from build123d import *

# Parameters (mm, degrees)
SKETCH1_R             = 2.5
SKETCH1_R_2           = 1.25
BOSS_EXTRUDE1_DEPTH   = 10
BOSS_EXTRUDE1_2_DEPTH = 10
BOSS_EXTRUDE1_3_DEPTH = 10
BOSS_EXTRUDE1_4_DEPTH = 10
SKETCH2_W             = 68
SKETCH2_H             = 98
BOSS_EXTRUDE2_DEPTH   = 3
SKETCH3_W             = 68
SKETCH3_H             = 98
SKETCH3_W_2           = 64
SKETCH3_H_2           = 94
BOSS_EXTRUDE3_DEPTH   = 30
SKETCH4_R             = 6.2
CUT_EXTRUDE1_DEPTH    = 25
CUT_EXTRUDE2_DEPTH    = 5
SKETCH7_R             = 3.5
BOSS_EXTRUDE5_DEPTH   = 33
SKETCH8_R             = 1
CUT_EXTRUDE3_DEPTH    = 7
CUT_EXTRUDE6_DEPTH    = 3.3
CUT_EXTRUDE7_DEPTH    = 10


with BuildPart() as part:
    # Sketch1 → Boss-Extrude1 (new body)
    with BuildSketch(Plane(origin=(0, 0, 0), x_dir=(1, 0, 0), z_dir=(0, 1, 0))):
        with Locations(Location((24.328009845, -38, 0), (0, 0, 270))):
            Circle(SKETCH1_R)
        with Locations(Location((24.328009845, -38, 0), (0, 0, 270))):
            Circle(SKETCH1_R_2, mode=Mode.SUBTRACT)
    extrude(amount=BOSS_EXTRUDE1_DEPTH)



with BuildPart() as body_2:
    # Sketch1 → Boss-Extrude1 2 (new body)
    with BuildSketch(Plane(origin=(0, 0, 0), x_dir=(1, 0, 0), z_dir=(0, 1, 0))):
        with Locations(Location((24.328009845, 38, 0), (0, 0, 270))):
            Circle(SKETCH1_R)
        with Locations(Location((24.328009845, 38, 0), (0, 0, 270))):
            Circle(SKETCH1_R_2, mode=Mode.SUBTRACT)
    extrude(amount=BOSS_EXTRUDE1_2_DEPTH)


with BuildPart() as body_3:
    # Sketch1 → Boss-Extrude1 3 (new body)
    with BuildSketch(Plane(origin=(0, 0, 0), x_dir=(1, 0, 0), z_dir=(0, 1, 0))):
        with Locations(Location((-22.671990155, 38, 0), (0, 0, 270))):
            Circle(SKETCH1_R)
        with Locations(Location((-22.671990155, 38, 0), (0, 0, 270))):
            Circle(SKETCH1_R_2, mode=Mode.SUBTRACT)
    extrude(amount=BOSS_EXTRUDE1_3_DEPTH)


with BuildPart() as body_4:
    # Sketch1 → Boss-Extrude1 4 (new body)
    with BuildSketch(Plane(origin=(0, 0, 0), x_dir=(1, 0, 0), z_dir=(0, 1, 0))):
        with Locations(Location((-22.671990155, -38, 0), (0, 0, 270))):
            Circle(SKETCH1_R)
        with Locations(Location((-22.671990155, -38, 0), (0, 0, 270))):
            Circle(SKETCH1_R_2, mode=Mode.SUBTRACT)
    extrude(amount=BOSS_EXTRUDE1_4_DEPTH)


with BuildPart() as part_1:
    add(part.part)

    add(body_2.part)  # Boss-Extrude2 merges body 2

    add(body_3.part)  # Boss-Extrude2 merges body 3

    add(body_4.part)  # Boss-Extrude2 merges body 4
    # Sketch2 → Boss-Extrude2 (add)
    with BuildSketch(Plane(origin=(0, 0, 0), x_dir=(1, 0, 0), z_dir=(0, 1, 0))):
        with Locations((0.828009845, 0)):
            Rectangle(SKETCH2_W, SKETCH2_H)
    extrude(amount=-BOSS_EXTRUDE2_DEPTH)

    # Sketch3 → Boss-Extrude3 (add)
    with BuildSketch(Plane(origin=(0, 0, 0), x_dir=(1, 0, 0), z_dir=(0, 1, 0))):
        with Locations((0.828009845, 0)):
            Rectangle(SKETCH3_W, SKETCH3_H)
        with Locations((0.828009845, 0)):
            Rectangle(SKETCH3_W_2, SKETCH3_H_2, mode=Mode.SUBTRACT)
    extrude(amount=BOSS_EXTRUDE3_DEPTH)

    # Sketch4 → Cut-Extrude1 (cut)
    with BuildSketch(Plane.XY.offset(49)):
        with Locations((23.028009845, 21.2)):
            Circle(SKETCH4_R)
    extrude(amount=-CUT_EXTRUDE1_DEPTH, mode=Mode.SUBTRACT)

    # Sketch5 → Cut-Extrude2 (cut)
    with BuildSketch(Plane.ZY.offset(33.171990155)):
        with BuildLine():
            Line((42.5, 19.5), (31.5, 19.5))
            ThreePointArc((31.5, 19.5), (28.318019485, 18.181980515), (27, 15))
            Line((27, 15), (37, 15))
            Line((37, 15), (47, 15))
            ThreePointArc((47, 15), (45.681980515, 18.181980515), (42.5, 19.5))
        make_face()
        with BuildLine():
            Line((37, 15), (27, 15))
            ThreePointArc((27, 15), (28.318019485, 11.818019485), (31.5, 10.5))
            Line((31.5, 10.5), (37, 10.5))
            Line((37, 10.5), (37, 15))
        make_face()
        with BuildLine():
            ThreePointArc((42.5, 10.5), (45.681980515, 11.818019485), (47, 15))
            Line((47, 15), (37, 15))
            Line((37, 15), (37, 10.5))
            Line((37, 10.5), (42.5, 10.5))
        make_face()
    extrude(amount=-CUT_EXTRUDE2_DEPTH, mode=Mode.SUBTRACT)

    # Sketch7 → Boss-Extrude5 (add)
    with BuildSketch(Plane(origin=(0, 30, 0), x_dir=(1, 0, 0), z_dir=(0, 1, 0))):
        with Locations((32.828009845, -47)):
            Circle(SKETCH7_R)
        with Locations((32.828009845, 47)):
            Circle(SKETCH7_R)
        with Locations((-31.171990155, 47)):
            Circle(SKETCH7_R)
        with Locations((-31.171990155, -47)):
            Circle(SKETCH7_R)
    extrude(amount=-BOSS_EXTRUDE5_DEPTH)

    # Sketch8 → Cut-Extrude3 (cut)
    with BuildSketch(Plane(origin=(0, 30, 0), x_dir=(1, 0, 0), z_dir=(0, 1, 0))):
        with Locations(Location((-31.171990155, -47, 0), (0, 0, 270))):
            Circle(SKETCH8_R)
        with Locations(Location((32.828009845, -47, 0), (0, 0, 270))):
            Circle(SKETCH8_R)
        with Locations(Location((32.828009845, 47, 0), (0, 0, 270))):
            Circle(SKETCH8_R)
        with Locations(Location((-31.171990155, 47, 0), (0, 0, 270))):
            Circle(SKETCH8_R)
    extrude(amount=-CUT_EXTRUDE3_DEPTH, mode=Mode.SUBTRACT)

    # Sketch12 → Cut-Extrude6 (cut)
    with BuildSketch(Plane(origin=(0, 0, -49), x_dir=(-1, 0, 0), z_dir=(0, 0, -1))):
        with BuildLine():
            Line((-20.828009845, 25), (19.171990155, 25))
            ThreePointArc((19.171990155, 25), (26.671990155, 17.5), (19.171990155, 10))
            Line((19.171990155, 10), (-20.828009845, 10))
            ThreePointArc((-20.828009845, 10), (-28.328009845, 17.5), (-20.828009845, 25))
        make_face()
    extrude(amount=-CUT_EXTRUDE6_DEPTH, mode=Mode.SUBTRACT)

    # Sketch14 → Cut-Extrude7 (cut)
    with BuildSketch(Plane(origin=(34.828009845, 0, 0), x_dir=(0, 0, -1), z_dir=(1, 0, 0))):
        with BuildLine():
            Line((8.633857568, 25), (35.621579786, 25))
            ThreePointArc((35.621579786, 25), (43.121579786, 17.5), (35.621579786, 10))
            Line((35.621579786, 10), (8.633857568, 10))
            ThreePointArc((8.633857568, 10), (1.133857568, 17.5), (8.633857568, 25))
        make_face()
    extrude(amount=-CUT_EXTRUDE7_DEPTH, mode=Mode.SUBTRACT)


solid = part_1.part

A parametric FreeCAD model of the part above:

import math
import FreeCAD as App
import Part
import Sketcher
from FreeCAD import Vector
Q = App.Units.Quantity


def add_polygon(sketch, points):
    """Adds a closed chain of lines whose ends are joined by coincident constraints."""
    first, n = sketch.GeometryCount, len(points)
    for a, b in zip(points, points[1:] + points[:1]):
        sketch.addGeometry(Part.LineSegment(App.Vector(*a, 0), App.Vector(*b, 0)), False)
    for i in range(n):
        sketch.addConstraint(Sketcher.Constraint("Coincident", first + i, 2, first + (i + 1) % n, 1))

doc = App.newDocument("Part")
body = doc.addObject("PartDesign::Body", "Body")

sketch1 = doc.addObject("Sketcher::SketchObject", "Sketch")
body.addObject(sketch1)
sketch1.AttachmentSupport = (doc.XZ_Plane, [""])
sketch1.MapMode = "FlatFace"
sketch1.addGeometry([
    Part.Circle(Vector(24.3, 38, 0), Vector(0, 0, 1), 2.5),
    Part.Circle(Vector(24.3, 38, 0), Vector(0, 0, 1), 1.2),
], False)
sketch1.addConstraint([
    Sketcher.Constraint("Coincident", 1, 3, 0, 3),
    Sketcher.Constraint("Diameter", 0, Q("5 mm")),
    Sketcher.Constraint("Diameter", 1, Q("2.5 mm")),
    Sketcher.Constraint("DistanceY", -1, 1, 0, 3, Q("38 mm")),
    Sketcher.Constraint("DistanceX", -1, 1, 0, 3, Q("24.32801 mm")),
])
pad1 = doc.addObject("PartDesign::Pad", "Pad")
body.addObject(pad1)
pad1.Profile = sketch1
pad1.Length = 10
pad1.Reversed = True
body2 = doc.addObject("PartDesign::Body", "Body001")

sketch2 = doc.addObject("Sketcher::SketchObject", "Sketch001")
body2.addObject(sketch2)
sketch2.AttachmentSupport = (doc.getObject("XZ_Plane001"), [""])
sketch2.MapMode = "FlatFace"
sketch2.addGeometry([
    Part.Circle(Vector(24.3, -38, 0), Vector(0, 0, 1), 2.5),
    Part.Circle(Vector(24.3, -38, 0), Vector(0, 0, 1), 1.2),
], False)
sketch2.addConstraint([
    Sketcher.Constraint("Coincident", 1, 3, 0, 3),
    Sketcher.Constraint("Diameter", 0, Q("5 mm")),
    Sketcher.Constraint("Diameter", 1, Q("2.5 mm")),
    Sketcher.Constraint("DistanceY", 0, 3, -1, 1, Q("38 mm")),
    Sketcher.Constraint("DistanceX", -1, 1, 0, 3, Q("24.32801 mm")),
])
pad2 = doc.addObject("PartDesign::Pad", "Pad001")
body2.addObject(pad2)
pad2.Profile = sketch2
pad2.Length = 10
pad2.Reversed = True
body3 = doc.addObject("PartDesign::Body", "Body002")

sketch3 = doc.addObject("Sketcher::SketchObject", "Sketch002")
body3.addObject(sketch3)
sketch3.AttachmentSupport = (doc.getObject("XZ_Plane002"), [""])
sketch3.MapMode = "FlatFace"
sketch3.addGeometry([
    Part.Circle(Vector(-22.7, -38, 0), Vector(0, 0, 1), 2.5),
    Part.Circle(Vector(-22.7, -38, 0), Vector(0, 0, 1), 1.2),
], False)
sketch3.addConstraint([
    Sketcher.Constraint("Coincident", 1, 3, 0, 3),
    Sketcher.Constraint("Diameter", 0, Q("5 mm")),
    Sketcher.Constraint("Diameter", 1, Q("2.5 mm")),
    Sketcher.Constraint("DistanceY", 0, 3, -1, 1, Q("38 mm")),
    Sketcher.Constraint("DistanceX", 0, 3, -1, 1, Q("22.67199 mm")),
])
pad3 = doc.addObject("PartDesign::Pad", "Pad002")
body3.addObject(pad3)
pad3.Profile = sketch3
pad3.Length = 10
pad3.Reversed = True
body4 = doc.addObject("PartDesign::Body", "Body003")

sketch4 = doc.addObject("Sketcher::SketchObject", "Sketch003")
body4.addObject(sketch4)
sketch4.AttachmentSupport = (doc.getObject("XZ_Plane003"), [""])
sketch4.MapMode = "FlatFace"
sketch4.addGeometry([
    Part.Circle(Vector(-22.7, 38, 0), Vector(0, 0, 1), 2.5),
    Part.Circle(Vector(-22.7, 38, 0), Vector(0, 0, 1), 1.2),
], False)
sketch4.addConstraint([
    Sketcher.Constraint("Coincident", 1, 3, 0, 3),
    Sketcher.Constraint("Diameter", 0, Q("5 mm")),
    Sketcher.Constraint("Diameter", 1, Q("2.5 mm")),
    Sketcher.Constraint("DistanceY", -1, 1, 0, 3, Q("38 mm")),
    Sketcher.Constraint("DistanceX", 0, 3, -1, 1, Q("22.67199 mm")),
])
pad4 = doc.addObject("PartDesign::Pad", "Pad003")
body4.addObject(pad4)
pad4.Profile = sketch4
pad4.Length = 10
pad4.Reversed = True
body.AllowCompound = True
doc.recompute()

boolean = doc.addObject("PartDesign::Boolean", "Boolean")
body.addObject(boolean)
boolean.Type = "Fuse"
boolean.addObjects([body2])
doc.recompute()

boolean2 = doc.addObject("PartDesign::Boolean", "Boolean001")
body.addObject(boolean2)
boolean2.Type = "Fuse"
boolean2.addObjects([body3])
doc.recompute()

boolean3 = doc.addObject("PartDesign::Boolean", "Boolean002")
body.addObject(boolean3)
boolean3.Type = "Fuse"
boolean3.addObjects([body4])

sketch5 = doc.addObject("Sketcher::SketchObject", "Sketch004")
body.addObject(sketch5)
sketch5.AttachmentSupport = (doc.XZ_Plane, [""])
sketch5.MapMode = "FlatFace"
add_polygon(sketch5, [(-33, -49), (-33, 49), (35, 49), (35, -49)])
sketch5.addConstraint([
    Sketcher.Constraint("Vertical", 0),
    Sketcher.Constraint("Horizontal", 1),
    Sketcher.Constraint("Vertical", 2),
    Sketcher.Constraint("Horizontal", 3),
    Sketcher.Constraint("DistanceX", 1, 1, 1, 2, Q("68 mm")),
    Sketcher.Constraint("DistanceY", 0, 1, 0, 2, Q("98 mm")),
    Sketcher.Constraint("DistanceY", -1, 1, 0, 2, Q("49 mm")),
    Sketcher.Constraint("DistanceX", 0, 2, -1, 1, Q("33.17199 mm")),
])
pad5 = doc.addObject("PartDesign::Pad", "Pad004")
body.addObject(pad5)
pad5.Profile = sketch5
pad5.Length = 3

sketch6 = doc.addObject("Sketcher::SketchObject", "Sketch005")
body.addObject(sketch6)
sketch6.AttachmentSupport = (doc.XZ_Plane, [""])
sketch6.MapMode = "FlatFace"
add_polygon(sketch6, [(-33, -49), (-33, 49), (35, 49), (35, -49)])
add_polygon(sketch6, [(33, 47), (-31, 47), (-31, -47), (33, -47)])
sketch6.addConstraint([
    Sketcher.Constraint("Vertical", 0),
    Sketcher.Constraint("Horizontal", 1),
    Sketcher.Constraint("Vertical", 2),
    Sketcher.Constraint("Horizontal", 3),
    Sketcher.Constraint("Horizontal", 4),
    Sketcher.Constraint("Vertical", 5),
    Sketcher.Constraint("Horizontal", 6),
    Sketcher.Constraint("Vertical", 7),
    Sketcher.Constraint("DistanceX", 1, 1, 1, 2, Q("68 mm")),
    Sketcher.Constraint("DistanceX", 4, 2, 4, 1, Q("64 mm")),
    Sketcher.Constraint("DistanceY", 0, 1, 0, 2, Q("98 mm")),
    Sketcher.Constraint("DistanceY", 5, 2, 5, 1, Q("94 mm")),
    Sketcher.Constraint("DistanceY", -1, 1, 0, 2, Q("49 mm")),
    Sketcher.Constraint("DistanceY", -1, 1, 4, 2, Q("47 mm")),
    Sketcher.Constraint("DistanceX", 0, 2, 4, 2, Q("2 mm")),
    Sketcher.Constraint("DistanceX", 0, 2, -1, 1, Q("33.17199 mm")),
])
pad6 = doc.addObject("PartDesign::Pad", "Pad005")
body.addObject(pad6)
pad6.Profile = sketch6
pad6.Length = 30
pad6.Reversed = True

sketch7 = doc.addObject("Sketcher::SketchObject", "Sketch006")
body.addObject(sketch7)
sketch7.AttachmentSupport = (doc.XY_Plane, [""])
sketch7.MapMode = "FlatFace"
sketch7.AttachmentOffset = App.Placement(Vector(0, 0, 49), App.Rotation())
sketch7.addGeometry(Part.Circle(Vector(23, 21, 0), Vector(0, 0, 1), 6), False)
sketch7.addConstraint([
    Sketcher.Constraint("Diameter", 0, Q("12.4 mm")),
    Sketcher.Constraint("DistanceY", -1, 1, 0, 3, Q("21.2 mm")),
    Sketcher.Constraint("DistanceX", -1, 1, 0, 3, Q("23.02801 mm")),
])
pocket1 = doc.addObject("PartDesign::Pocket", "Pocket")
body.addObject(pocket1)
pocket1.Profile = sketch7
pocket1.Length = 25

sketch8 = doc.addObject("Sketcher::SketchObject", "Sketch007")
body.addObject(sketch8)
sketch8.AttachmentSupport = (doc.YZ_Plane, [""])
sketch8.MapMode = "FlatFace"
sketch8.AttachmentOffset = App.Placement(Vector(0, 0, -33.17199), App.Rotation())
sketch8.addGeometry([
    Part.LineSegment(Vector(19.5, 42.5, 0), Vector(19.5, 31.5, 0)),
    Part.ArcOfCircle(Part.Circle(Vector(15, 31.5, 0), Vector(0, 0, 1), 4.5), math.radians(-90), math.radians(0)),
    Part.ArcOfCircle(Part.Circle(Vector(15, 31.5, 0), Vector(0, 0, 1), 4.5), math.radians(-180), math.radians(-90)),
    Part.LineSegment(Vector(10.5, 31.5, 0), Vector(10.5, 42.5, 0)),
    Part.ArcOfCircle(Part.Circle(Vector(15, 42.5, 0), Vector(0, 0, 1), 4.5), math.radians(90), math.radians(180)),
    Part.ArcOfCircle(Part.Circle(Vector(15, 42.5, 0), Vector(0, 0, 1), 4.5), math.radians(0), math.radians(90)),
], False)
sketch8.addConstraint([
    Sketcher.Constraint("Tangent", 0, 2, 1, 2),
    Sketcher.Constraint("Tangent", 1, 1, 2, 2),
    Sketcher.Constraint("Tangent", 2, 1, 3, 1),
    Sketcher.Constraint("Tangent", 3, 2, 4, 2),
    Sketcher.Constraint("Tangent", 4, 1, 5, 2),
    Sketcher.Constraint("Tangent", 5, 1, 0, 1),
    Sketcher.Constraint("Vertical", 0),
    Sketcher.Constraint("Vertical", 3),
    Sketcher.Constraint("Equal", 1, 2),
    Sketcher.Constraint("Equal", 2, 4),
    Sketcher.Constraint("Vertical", 5, 3, 1, 1),
    Sketcher.Constraint("Vertical", 1, 1, 4, 1),
    Sketcher.Constraint("Radius", 1, Q("4.5 mm")),
    Sketcher.Constraint("DistanceY", 0, 2, 0, 1, Q("11 mm")),
    Sketcher.Constraint("DistanceX", -1, 1, 1, 3, Q("15 mm")),
    Sketcher.Constraint("DistanceY", -1, 1, 1, 1, Q("27 mm")),
])
pocket2 = doc.addObject("PartDesign::Pocket", "Pocket001")
body.addObject(pocket2)
pocket2.Profile = sketch8
pocket2.Length = 5
pocket2.Reversed = True

sketch9 = doc.addObject("Sketcher::SketchObject", "Sketch008")
body.addObject(sketch9)
sketch9.AttachmentSupport = (doc.XZ_Plane, [""])
sketch9.MapMode = "FlatFace"
sketch9.AttachmentOffset = App.Placement(Vector(0, 0, -30), App.Rotation())
sketch9.addGeometry([
    Part.Circle(Vector(32.8, 47, 0), Vector(0, 0, 1), 3.5),
    Part.Circle(Vector(32.8, -47, 0), Vector(0, 0, 1), 3.5),
    Part.Circle(Vector(-31.2, -47, 0), Vector(0, 0, 1), 3.5),
    Part.Circle(Vector(-31.2, 47, 0), Vector(0, 0, 1), 3.5),
], False)
sketch9.addConstraint([
    Sketcher.Constraint("Equal", 0, 1),
    Sketcher.Constraint("Equal", 1, 2),
    Sketcher.Constraint("Equal", 2, 3),
    Sketcher.Constraint("Symmetric", 0, 3, 1, 3, -1),
    Sketcher.Constraint("Symmetric", 2, 3, 3, 3, -1),
    Sketcher.Constraint("Horizontal", 1, 3, 2, 3),
    Sketcher.Constraint("Diameter", 0, Q("7 mm")),
    Sketcher.Constraint("DistanceY", -1, 1, 0, 3, Q("47 mm")),
    Sketcher.Constraint("DistanceX", 2, 3, 1, 3, Q("64 mm")),
    Sketcher.Constraint("DistanceX", -1, 1, 0, 3, Q("32.82801 mm")),
])
pad7 = doc.addObject("PartDesign::Pad", "Pad006")
body.addObject(pad7)
pad7.Profile = sketch9
pad7.Length = 33

sketch10 = doc.addObject("Sketcher::SketchObject", "Sketch009")
body.addObject(sketch10)
sketch10.AttachmentSupport = (doc.XZ_Plane, [""])
sketch10.MapMode = "FlatFace"
sketch10.AttachmentOffset = App.Placement(Vector(0, 0, -30), App.Rotation())
sketch10.addGeometry([
    Part.Circle(Vector(-31.2, 47, 0), Vector(0, 0, 1), 1),
    Part.Circle(Vector(32.8, 47, 0), Vector(0, 0, 1), 1),
    Part.Circle(Vector(32.8, -47, 0), Vector(0, 0, 1), 1),
    Part.Circle(Vector(-31.2, -47, 0), Vector(0, 0, 1), 1),
], False)
sketch10.addConstraint([
    Sketcher.Constraint("Equal", 0, 1),
    Sketcher.Constraint("Equal", 1, 2),
    Sketcher.Constraint("Equal", 2, 3),
    Sketcher.Constraint("Symmetric", 1, 3, 2, 3, -1),
    Sketcher.Constraint("Symmetric", 0, 3, 3, 3, -1),
    Sketcher.Constraint("Horizontal", 0, 3, 1, 3),
    Sketcher.Constraint("Diameter", 0, Q("2 mm")),
    Sketcher.Constraint("DistanceY", -1, 1, 0, 3, Q("47 mm")),
    Sketcher.Constraint("DistanceX", 0, 3, 1, 3, Q("64 mm")),
    Sketcher.Constraint("DistanceX", 0, 3, -1, 1, Q("31.17199 mm")),
])
pocket3 = doc.addObject("PartDesign::Pocket", "Pocket002")
body.addObject(pocket3)
pocket3.Profile = sketch10
pocket3.Length = 7
pocket3.Reversed = True

sketch11 = doc.addObject("Sketcher::SketchObject", "Sketch010")
body.addObject(sketch11)
sketch11.AttachmentSupport = (doc.XY_Plane, [""])
sketch11.MapMode = "FlatFace"
sketch11.AttachmentOffset = App.Placement(Vector(0, 0, -49), App.Rotation())
sketch11.addGeometry([
    Part.LineSegment(Vector(-19, 25, 0), Vector(21, 25, 0)),
    Part.ArcOfCircle(Part.Circle(Vector(21, 18, 0), Vector(0, 0, 1), 8), math.radians(-90), math.radians(90)),
    Part.LineSegment(Vector(21, 10, 0), Vector(-19, 10, 0)),
    Part.ArcOfCircle(Part.Circle(Vector(-19, 18, 0), Vector(0, 0, 1), 8), math.radians(90), math.radians(270)),
], False)
sketch11.addConstraint([
    Sketcher.Constraint("Tangent", 0, 2, 1, 2),
    Sketcher.Constraint("Tangent", 1, 1, 2, 1),
    Sketcher.Constraint("Tangent", 2, 2, 3, 2),
    Sketcher.Constraint("Tangent", 3, 1, 0, 1),
    Sketcher.Constraint("Horizontal", 0),
    Sketcher.Constraint("Horizontal", 2),
    Sketcher.Constraint("Radius", 1, Q("7.5 mm")),
    Sketcher.Constraint("DistanceX", 0, 1, 0, 2, Q("40 mm")),
    Sketcher.Constraint("DistanceY", -1, 1, 0, 2, Q("25 mm")),
    Sketcher.Constraint("DistanceX", -1, 1, 1, 3, Q("20.82801 mm")),
])
pocket4 = doc.addObject("PartDesign::Pocket", "Pocket003")
body.addObject(pocket4)
pocket4.Profile = sketch11
pocket4.Length = 3.3
pocket4.Reversed = True

sketch12 = doc.addObject("Sketcher::SketchObject", "Sketch011")
body.addObject(sketch12)
sketch12.AttachmentSupport = (doc.YZ_Plane, [""])
sketch12.MapMode = "FlatFace"
sketch12.AttachmentOffset = App.Placement(Vector(0, 0, 34.82801), App.Rotation())
sketch12.addGeometry([
    Part.LineSegment(Vector(25, -36, 0), Vector(25, -9, 0)),
    Part.ArcOfCircle(Part.Circle(Vector(18, -9, 0), Vector(0, 0, 1), 8), math.radians(0), math.radians(180)),
    Part.LineSegment(Vector(10, -9, 0), Vector(10, -36, 0)),
    Part.ArcOfCircle(Part.Circle(Vector(18, -36, 0), Vector(0, 0, 1), 8), math.radians(180), math.radians(360)),
], False)
sketch12.addConstraint([
    Sketcher.Constraint("Tangent", 0, 2, 1, 1),
    Sketcher.Constraint("Tangent", 1, 2, 2, 1),
    Sketcher.Constraint("Tangent", 2, 2, 3, 1),
    Sketcher.Constraint("Tangent", 3, 2, 0, 1),
    Sketcher.Constraint("Vertical", 0),
    Sketcher.Constraint("Vertical", 2),
    Sketcher.Constraint("Radius", 1, Q("7.5 mm")),
    Sketcher.Constraint("DistanceX", -1, 1, 0, 2, Q("25 mm")),
    Sketcher.Constraint("DistanceY", 0, 1, 0, 2, Q("26.987722 mm")),
    Sketcher.Constraint("DistanceY", 3, 3, -1, 1, Q("35.62158 mm")),
])
pocket5 = doc.addObject("PartDesign::Pocket", "Pocket004")
body.addObject(pocket5)
pocket5.Profile = sketch12
pocket5.Length = 10

doc.recompute()
